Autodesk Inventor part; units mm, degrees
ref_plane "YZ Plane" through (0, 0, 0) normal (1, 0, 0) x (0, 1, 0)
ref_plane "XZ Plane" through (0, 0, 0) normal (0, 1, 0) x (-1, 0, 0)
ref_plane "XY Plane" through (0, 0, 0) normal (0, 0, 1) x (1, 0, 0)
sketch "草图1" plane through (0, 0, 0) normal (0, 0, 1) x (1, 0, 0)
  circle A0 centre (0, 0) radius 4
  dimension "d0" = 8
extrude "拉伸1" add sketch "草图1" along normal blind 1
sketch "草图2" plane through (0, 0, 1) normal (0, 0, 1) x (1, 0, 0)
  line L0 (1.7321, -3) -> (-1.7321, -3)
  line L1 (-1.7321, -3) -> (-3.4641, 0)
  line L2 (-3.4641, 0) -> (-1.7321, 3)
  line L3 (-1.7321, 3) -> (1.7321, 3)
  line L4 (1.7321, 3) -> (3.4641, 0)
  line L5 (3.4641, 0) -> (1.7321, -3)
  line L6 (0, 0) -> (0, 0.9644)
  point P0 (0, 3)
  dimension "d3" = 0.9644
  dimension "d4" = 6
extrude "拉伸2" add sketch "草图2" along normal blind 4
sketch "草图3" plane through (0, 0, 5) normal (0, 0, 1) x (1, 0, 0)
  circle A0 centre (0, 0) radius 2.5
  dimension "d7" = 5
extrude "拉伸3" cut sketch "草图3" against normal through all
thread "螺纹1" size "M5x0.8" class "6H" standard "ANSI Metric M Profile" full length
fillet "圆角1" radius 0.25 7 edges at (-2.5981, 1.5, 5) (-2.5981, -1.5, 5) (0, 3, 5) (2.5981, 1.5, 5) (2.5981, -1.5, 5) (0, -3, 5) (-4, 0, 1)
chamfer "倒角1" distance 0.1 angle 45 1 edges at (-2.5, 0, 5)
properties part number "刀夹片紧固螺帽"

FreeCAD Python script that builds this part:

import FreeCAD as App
import Part
import Sketcher
Q = App.Units.Quantity


def edges_at(feature, points):
    """Names of the edges that pass closest to the given points."""
    edges = feature.Shape.Edges
    near = lambda p: min(range(len(edges)), key=lambda i: edges[i].distToShape(Part.Vertex(*p))[0])
    return sorted({f"Edge{near(p) + 1}" for p in points})


def add_polygon(sketch, points):
    """Adds a closed chain of lines whose ends are joined by coincident constraints."""
    first, n = sketch.GeometryCount, len(points)
    for a, b in zip(points, points[1:] + points[:1]):
        sketch.addGeometry(Part.LineSegment(App.Vector(*a, 0), App.Vector(*b, 0)), False)
    for i in range(n):
        sketch.addConstraint(Sketcher.Constraint("Coincident", first + i, 2, first + (i + 1) % n, 1))

doc = App.newDocument("Part")
body = doc.addObject("PartDesign::Body", "Body")

sketch1 = doc.addObject("Sketcher::SketchObject", "Sketch")
body.addObject(sketch1)
sketch1.AttachmentSupport = (doc.XY_Plane, [""])
sketch1.MapMode = "FlatFace"
sketch1.addGeometry(Part.Circle(App.Vector(0, 0, 0), App.Vector(0, 0, 1), 4), False)
sketch1.addConstraint(Sketcher.Constraint("Coincident", 0, 3, -1, 1))
sketch1.addConstraint(Sketcher.Constraint("Diameter", 0, Q("8 mm")))
pad1 = doc.addObject("PartDesign::Pad", "Pad")
body.addObject(pad1)
pad1.Profile = sketch1
pad1.Length = 1

sketch2 = doc.addObject("Sketcher::SketchObject", "Sketch001")
body.addObject(sketch2)
sketch2.AttachmentSupport = (doc.XY_Plane, [""])
sketch2.MapMode = "FlatFace"
sketch2.AttachmentOffset = App.Placement(App.Vector(0, 0, 1), App.Rotation())
add_polygon(sketch2, [(-1.7, -3), (1.7, -3), (3.5, 0), (1.7, 3), (-1.7, 3), (-3.5, 0)])
sketch2.addConstraint(Sketcher.Constraint("Horizontal", 0))
sketch2.addConstraint(Sketcher.Constraint("Horizontal", 3))
sketch2.addConstraint(Sketcher.Constraint("Symmetric", 0, 2, 3, 2, -1, 1))
sketch2.addConstraint(Sketcher.Constraint("Symmetric", 1, 2, 4, 2, -1, 1))
sketch2.addConstraint(Sketcher.Constraint("PointOnObject", 1, 2, -1))
sketch2.addConstraint(Sketcher.Constraint("Parallel", 2, 5))
sketch2.addConstraint(Sketcher.Constraint("Vertical", 0, 2, 2, 2))
sketch2.addConstraint(Sketcher.Constraint("DistanceY", 0, 2, 2, 2, Q("6 mm")))
sketch2.addConstraint(Sketcher.Constraint("Angle", 1, Q("60.0007 deg")))
sketch2.addConstraint(Sketcher.Constraint("DistanceX", 0, 1, 0, 2, Q("3.4642 mm")))
pad2 = doc.addObject("PartDesign::Pad", "Pad001")
body.addObject(pad2)
pad2.Profile = sketch2
pad2.Length = 4

sketch3 = doc.addObject("Sketcher::SketchObject", "Sketch002")
body.addObject(sketch3)
sketch3.AttachmentSupport = (doc.XY_Plane, [""])
sketch3.MapMode = "FlatFace"
sketch3.AttachmentOffset = App.Placement(App.Vector(0, 0, 5), App.Rotation())
sketch3.addGeometry(Part.Circle(App.Vector(0, 0, 0), App.Vector(0, 0, 1), 2.5), False)
sketch3.addConstraint(Sketcher.Constraint("Coincident", 0, 3, -1, 1))
sketch3.addConstraint(Sketcher.Constraint("Diameter", 0, Q("5 mm")))
pocket1 = doc.addObject("PartDesign::Pocket", "Pocket")
body.addObject(pocket1)
pocket1.Profile = sketch3
pocket1.Type = "ThroughAll"
doc.recompute()

fillet = doc.addObject("PartDesign::Fillet", "Fillet")
body.addObject(fillet)
fillet.Base = (pocket1, edges_at(pocket1, [
    (-2.598, 1.5, 5),
    (-2.598, -1.5, 5),
    (0, 3, 5),
    (2.598, 1.5, 5),
    (2.598, -1.5, 5),
    (0, -3, 5),
    (-4, 0, 1),
]))
fillet.Radius = 0.25
doc.recompute()

chamfer = doc.addObject("PartDesign::Chamfer", "Chamfer")
body.addObject(chamfer)
chamfer.Base = (fillet, edges_at(fillet, [(-2.5, 0, 5)]))
chamfer.Size = 0.1

doc.recompute()
